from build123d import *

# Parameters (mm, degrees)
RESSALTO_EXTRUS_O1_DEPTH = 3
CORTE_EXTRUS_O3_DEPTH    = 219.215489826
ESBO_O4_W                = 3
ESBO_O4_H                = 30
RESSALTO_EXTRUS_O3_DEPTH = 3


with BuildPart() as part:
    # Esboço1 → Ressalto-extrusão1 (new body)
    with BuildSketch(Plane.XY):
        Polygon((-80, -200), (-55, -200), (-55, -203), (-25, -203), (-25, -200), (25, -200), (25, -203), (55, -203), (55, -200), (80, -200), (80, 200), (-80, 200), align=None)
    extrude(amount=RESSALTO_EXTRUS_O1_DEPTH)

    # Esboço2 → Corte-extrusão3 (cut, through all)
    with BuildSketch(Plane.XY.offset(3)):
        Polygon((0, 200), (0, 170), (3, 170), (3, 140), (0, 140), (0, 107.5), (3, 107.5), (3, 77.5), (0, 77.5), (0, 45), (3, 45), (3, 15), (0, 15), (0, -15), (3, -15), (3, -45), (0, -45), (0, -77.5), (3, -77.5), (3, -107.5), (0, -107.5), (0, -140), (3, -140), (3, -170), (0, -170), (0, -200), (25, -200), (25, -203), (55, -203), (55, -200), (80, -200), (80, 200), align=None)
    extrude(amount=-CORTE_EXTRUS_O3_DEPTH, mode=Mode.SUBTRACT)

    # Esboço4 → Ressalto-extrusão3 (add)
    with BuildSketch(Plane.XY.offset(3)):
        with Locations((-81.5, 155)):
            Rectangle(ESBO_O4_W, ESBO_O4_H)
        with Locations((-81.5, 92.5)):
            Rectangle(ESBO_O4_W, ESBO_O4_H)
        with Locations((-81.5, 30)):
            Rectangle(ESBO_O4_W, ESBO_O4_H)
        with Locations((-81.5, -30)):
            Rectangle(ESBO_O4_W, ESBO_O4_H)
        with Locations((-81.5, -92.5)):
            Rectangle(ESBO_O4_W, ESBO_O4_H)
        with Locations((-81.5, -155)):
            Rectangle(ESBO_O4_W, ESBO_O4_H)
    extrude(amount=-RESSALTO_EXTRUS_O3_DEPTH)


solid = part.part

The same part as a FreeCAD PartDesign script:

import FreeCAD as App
import Part
import Sketcher


def add_polygon(sketch, points):
    """Adds a closed chain of lines whose ends are joined by coincident constraints."""
    first, n = sketch.GeometryCount, len(points)
    for a, b in zip(points, points[1:] + points[:1]):
        sketch.addGeometry(Part.LineSegment(App.Vector(*a, 0), App.Vector(*b, 0)), False)
    for i in range(n):
        sketch.addConstraint(Sketcher.Constraint("Coincident", first + i, 2, first + (i + 1) % n, 1))

doc = App.newDocument("Part")
params = doc.addObject("Spreadsheet::Sheet", "Params")
for row, (alias, value) in enumerate([
    ("sketch1_width", "25 mm"),
    ("sketch1_width2", "30 mm"),
    ("sketch1_width3", "50 mm"),
    ("sketch1_height", "3 mm"),
    ("sketch1_height2", "400 mm"),
    ("pad1_length", "3 mm"),
    ("sketch2_width", "3 mm"),
    ("sketch2_width2", "25 mm"),
    ("sketch2_width3", "30 mm"),
    ("sketch2_height", "400 mm"),
    ("sketch3_width", "3 mm"),
    ("sketch3_height", "30 mm"),
    ("pad2_length", "3 mm"),
], start=1):
    params.set(f"A{row}", alias)
    params.set(f"B{row}", "=" + value)
    params.setAlias(f"B{row}", alias)

body = doc.addObject("PartDesign::Body", "Body")

# Sketch on XY plane
sketch1 = doc.addObject("Sketcher::SketchObject", "Sketch")
body.addObject(sketch1)
sketch1.AttachmentSupport = (doc.XY_Plane, [""])
sketch1.MapMode = "FlatFace"
add_polygon(sketch1, [(-80, -200), (-55, -200), (-55, -203), (-25, -203), (-25, -200), (25, -200), (25, -203), (55, -203), (55, -200), (80, -200), (80, 200), (-80, 200)])  # lines 0-11
sketch1.addConstraint(Sketcher.Constraint("Horizontal", 0))
sketch1.addConstraint(Sketcher.Constraint("Vertical", 1))
sketch1.addConstraint(Sketcher.Constraint("Horizontal", 2))
sketch1.addConstraint(Sketcher.Constraint("Vertical", 3))
sketch1.addConstraint(Sketcher.Constraint("Horizontal", 4))
sketch1.addConstraint(Sketcher.Constraint("Vertical", 5))
sketch1.addConstraint(Sketcher.Constraint("Horizontal", 6))
sketch1.addConstraint(Sketcher.Constraint("Vertical", 7))
sketch1.addConstraint(Sketcher.Constraint("Horizontal", 8))
sketch1.addConstraint(Sketcher.Constraint("Vertical", 9))
sketch1.addConstraint(Sketcher.Constraint("Horizontal", 10))
sketch1.addConstraint(Sketcher.Constraint("Vertical", 11))
sketch1.addConstraint(Sketcher.Constraint("Symmetric", 8, 2, 10, 2, -1, 1))
sketch1.addConstraint(Sketcher.Constraint("Symmetric", 2, 2, 5, 2, -2))
sketch1.addConstraint(Sketcher.Constraint("Symmetric", 0, 2, 7, 2, -2))
sketch1.addConstraint(Sketcher.Constraint("Horizontal", 0, 2, 3, 2))
sketch1.addConstraint(Sketcher.Constraint("DistanceX", 0, 1, 0, 2, 25.0))
sketch1.addConstraint(Sketcher.Constraint("DistanceX", 2, 1, 2, 2, 30.0))
sketch1.addConstraint(Sketcher.Constraint("DistanceX", 4, 1, 4, 2, 50.0))
sketch1.addConstraint(Sketcher.Constraint("DistanceY", 1, 2, 1, 1, 3.0))
sketch1.addConstraint(Sketcher.Constraint("DistanceY", 9, 1, 9, 2, 400.0))
sketch1.setExpression("Constraints[28]", "Params.sketch1_width")
sketch1.setExpression("Constraints[29]", "Params.sketch1_width2")
sketch1.setExpression("Constraints[30]", "Params.sketch1_width3")
sketch1.setExpression("Constraints[31]", "Params.sketch1_height")
sketch1.setExpression("Constraints[32]", "Params.sketch1_height2")
pad1 = doc.addObject("PartDesign::Pad", "Pad")
body.addObject(pad1)
pad1.Profile = sketch1
pad1.setExpression("Length", "Params.pad1_length")

# Sketch on XY plane
sketch2 = doc.addObject("Sketcher::SketchObject", "Sketch001")
body.addObject(sketch2)
sketch2.AttachmentSupport = (doc.XY_Plane, [""])
sketch2.MapMode = "FlatFace"
sketch2.AttachmentOffset = App.Placement(App.Vector(0, 0, 3), App.Rotation())
add_polygon(sketch2, [(0, 200), (0, 170), (3, 170), (3, 140), (0, 140), (0, 107.5), (3, 107.5), (3, 77.5), (0, 77.5), (0, 45), (3, 45), (3, 15), (0, 15), (0, -15), (3, -15), (3, -45), (0, -45), (0, -77.5), (3, -77.5), (3, -107.5), (0, -107.5), (0, -140), (3, -140), (3, -170), (0, -170), (0, -200), (25, -200), (25, -203), (55, -203), (55, -200), (80, -200), (80, 200)])  # lines 0-31
sketch2.addConstraint(Sketcher.Constraint("Vertical", 0))
sketch2.addConstraint(Sketcher.Constraint("Horizontal", 1))
sketch2.addConstraint(Sketcher.Constraint("Vertical", 2))
sketch2.addConstraint(Sketcher.Constraint("Horizontal", 3))
sketch2.addConstraint(Sketcher.Constraint("Vertical", 4))
sketch2.addConstraint(Sketcher.Constraint("Horizontal", 5))
sketch2.addConstraint(Sketcher.Constraint("Vertical", 6))
sketch2.addConstraint(Sketcher.Constraint("Horizontal", 7))
sketch2.addConstraint(Sketcher.Constraint("Vertical", 8))
sketch2.addConstraint(Sketcher.Constraint("Horizontal", 9))
sketch2.addConstraint(Sketcher.Constraint("Vertical", 10))
sketch2.addConstraint(Sketcher.Constraint("Horizontal", 11))
sketch2.addConstraint(Sketcher.Constraint("Vertical", 12))
sketch2.addConstraint(Sketcher.Constraint("Horizontal", 13))
sketch2.addConstraint(Sketcher.Constraint("Vertical", 14))
sketch2.addConstraint(Sketcher.Constraint("Horizontal", 15))
sketch2.addConstraint(Sketcher.Constraint("Vertical", 16))
sketch2.addConstraint(Sketcher.Constraint("Horizontal", 17))
sketch2.addConstraint(Sketcher.Constraint("Vertical", 18))
sketch2.addConstraint(Sketcher.Constraint("Horizontal", 19))
sketch2.addConstraint(Sketcher.Constraint("Vertical", 20))
sketch2.addConstraint(Sketcher.Constraint("Horizontal", 21))
sketch2.addConstraint(Sketcher.Constraint("Vertical", 22))
sketch2.addConstraint(Sketcher.Constraint("Horizontal", 23))
sketch2.addConstraint(Sketcher.Constraint("Vertical", 24))
sketch2.addConstraint(Sketcher.Constraint("Horizontal", 25))
sketch2.addConstraint(Sketcher.Constraint("Vertical", 26))
sketch2.addConstraint(Sketcher.Constraint("Horizontal", 27))
sketch2.addConstraint(Sketcher.Constraint("Vertical", 28))
sketch2.addConstraint(Sketcher.Constraint("Horizontal", 29))
sketch2.addConstraint(Sketcher.Constraint("Vertical", 30))
sketch2.addConstraint(Sketcher.Constraint("Horizontal", 31))
sketch2.addConstraint(Sketcher.Constraint("Symmetric", 11, 2, 12, 2, -1, 1))
sketch2.addConstraint(Sketcher.Constraint("Symmetric", 8, 2, 15, 2, -1, 1))
sketch2.addConstraint(Sketcher.Constraint("Symmetric", 4, 2, 19, 2, -1, 1))
sketch2.addConstraint(Sketcher.Constraint("Symmetric", 0, 2, 23, 2, -1, 1))
sketch2.addConstraint(Sketcher.Constraint("Symmetric", 7, 2, 16, 2, -1))
sketch2.addConstraint(Sketcher.Constraint("Symmetric", 3, 2, 20, 2, -1))
sketch2.addConstraint(Sketcher.Constraint("Symmetric", 24, 2, 31, 2, -1))
sketch2.addConstraint(Sketcher.Constraint("Horizontal", 25, 2, 28, 2))
sketch2.addConstraint(Sketcher.Constraint("Vertical", 2, 2, 5, 2))
sketch2.addConstraint(Sketcher.Constraint("Vertical", 6, 2, 9, 2))
sketch2.addConstraint(Sketcher.Constraint("Vertical", 10, 2, 13, 2))
sketch2.addConstraint(Sketcher.Constraint("Vertical", 14, 2, 17, 2))
sketch2.addConstraint(Sketcher.Constraint("Vertical", 18, 2, 21, 2))
sketch2.addConstraint(Sketcher.Constraint("Equal", 25, 29))
sketch2.addConstraint(Sketcher.Constraint("Equal", 27, 0))
sketch2.addConstraint(Sketcher.Constraint("Equal", 0, 2))
sketch2.addConstraint(Sketcher.Constraint("Equal", 2, 6))
sketch2.addConstraint(Sketcher.Constraint("Equal", 4, 8))
sketch2.addConstraint(Sketcher.Constraint("Equal", 6, 10))
sketch2.addConstraint(Sketcher.Constraint("Equal", 10, 12))
sketch2.addConstraint(Sketcher.Constraint("Equal", 23, 26))
sketch2.addConstraint(Sketcher.Constraint("DistanceX", 1, 1, 1, 2, 3.0))
sketch2.addConstraint(Sketcher.Constraint("DistanceX", 25, 1, 25, 2, 25.0))
sketch2.addConstraint(Sketcher.Constraint("DistanceX", 27, 1, 27, 2, 30.0))
sketch2.addConstraint(Sketcher.Constraint("DistanceY", 30, 1, 30, 2, 400.0))
sketch2.setExpression("Constraints[85]", "Params.sketch2_width")
sketch2.setExpression("Constraints[86]", "Params.sketch2_width2")
sketch2.setExpression("Constraints[87]", "Params.sketch2_width3")
sketch2.setExpression("Constraints[88]", "Params.sketch2_height")
pocket1 = doc.addObject("PartDesign::Pocket", "Pocket")
body.addObject(pocket1)
pocket1.Profile = sketch2
pocket1.Type = "ThroughAll"

# Sketch on XY plane
sketch3 = doc.addObject("Sketcher::SketchObject", "Sketch002")
body.addObject(sketch3)
sketch3.AttachmentSupport = (doc.XY_Plane, [""])
sketch3.MapMode = "FlatFace"
sketch3.AttachmentOffset = App.Placement(App.Vector(0, 0, 3), App.Rotation())
add_polygon(sketch3, [(-83, 170), (-83, 140), (-80, 140), (-80, 170)])  # lines 0-3
add_polygon(sketch3, [(-83, 107.5), (-83, 77.5), (-80, 77.5), (-80, 107.5)])  # lines 4-7
add_polygon(sketch3, [(-83, 45), (-83, 15), (-80, 15), (-80, 45)])  # lines 8-11
add_polygon(sketch3, [(-83, -15), (-83, -45), (-80, -45), (-80, -15)])  # lines 12-15
add_polygon(sketch3, [(-83, -77.5), (-83, -107.5), (-80, -107.5), (-80, -77.5)])  # lines 16-19
add_polygon(sketch3, [(-83, -140), (-83, -170), (-80, -170), (-80, -140)])  # lines 20-23
sketch3.addConstraint(Sketcher.Constraint("Vertical", 0))
sketch3.addConstraint(Sketcher.Constraint("Horizontal", 1))
sketch3.addConstraint(Sketcher.Constraint("Vertical", 2))
sketch3.addConstraint(Sketcher.Constraint("Horizontal", 3))
sketch3.addConstraint(Sketcher.Constraint("Vertical", 4))
sketch3.addConstraint(Sketcher.Constraint("Horizontal", 5))
sketch3.addConstraint(Sketcher.Constraint("Vertical", 6))
sketch3.addConstraint(Sketcher.Constraint("Horizontal", 7))
sketch3.addConstraint(Sketcher.Constraint("Vertical", 8))
sketch3.addConstraint(Sketcher.Constraint("Horizontal", 9))
sketch3.addConstraint(Sketcher.Constraint("Vertical", 10))
sketch3.addConstraint(Sketcher.Constraint("Horizontal", 11))
sketch3.addConstraint(Sketcher.Constraint("Vertical", 12))
sketch3.addConstraint(Sketcher.Constraint("Horizontal", 13))
sketch3.addConstraint(Sketcher.Constraint("Vertical", 14))
sketch3.addConstraint(Sketcher.Constraint("Horizontal", 15))
sketch3.addConstraint(Sketcher.Constraint("Vertical", 16))
sketch3.addConstraint(Sketcher.Constraint("Horizontal", 17))
sketch3.addConstraint(Sketcher.Constraint("Vertical", 18))
sketch3.addConstraint(Sketcher.Constraint("Horizontal", 19))
sketch3.addConstraint(Sketcher.Constraint("Vertical", 20))
sketch3.addConstraint(Sketcher.Constraint("Horizontal", 21))
sketch3.addConstraint(Sketcher.Constraint("Vertical", 22))
sketch3.addConstraint(Sketcher.Constraint("Horizontal", 23))
sketch3.addConstraint(Sketcher.Constraint("Symmetric", 11, 2, 12, 2, -1))
sketch3.addConstraint(Sketcher.Constraint("Symmetric", 9, 2, 14, 2, -1))
sketch3.addConstraint(Sketcher.Constraint("Symmetric", 7, 2, 16, 2, -1))
sketch3.addConstraint(Sketcher.Constraint("Symmetric", 5, 2, 18, 2, -1))
sketch3.addConstraint(Sketcher.Constraint("Symmetric", 3, 2, 20, 2, -1))
sketch3.addConstraint(Sketcher.Constraint("Symmetric", 1, 2, 22, 2, -1))
sketch3.addConstraint(Sketcher.Constraint("Vertical", 3, 2, 4, 2))
sketch3.addConstraint(Sketcher.Constraint("Vertical", 2, 2, 5, 2))
sketch3.addConstraint(Sketcher.Constraint("Vertical", 7, 2, 8, 2))
sketch3.addConstraint(Sketcher.Constraint("Vertical", 6, 2, 9, 2))
sketch3.addConstraint(Sketcher.Constraint("Equal", 2, 4))
sketch3.addConstraint(Sketcher.Constraint("Equal", 6, 8))
sketch3.addConstraint(Sketcher.Constraint("DistanceX", 1, 1, 1, 2, 3.0))
sketch3.addConstraint(Sketcher.Constraint("DistanceY", 0, 2, 0, 1, 30.0))
sketch3.addConstraint(Sketcher.Constraint("DistanceX", 0, 2, -1, 1, 83.0))
sketch3.addConstraint(Sketcher.Constraint("DistanceY", -1, 1, 0, 2, 140.0))
sketch3.addConstraint(Sketcher.Constraint("DistanceY", -1, 1, 8, 2, 15.0))
sketch3.addConstraint(Sketcher.Constraint("DistanceY", -1, 1, 4, 2, 77.5))
sketch3.setExpression("Constraints[60]", "Params.sketch3_width")
sketch3.setExpression("Constraints[61]", "Params.sketch3_height")
pad2 = doc.addObject("PartDesign::Pad", "Pad001")
body.addObject(pad2)
pad2.Profile = sketch3
pad2.setExpression("Length", "Params.pad2_length")
pad2.Reversed = True

doc.recompute()
